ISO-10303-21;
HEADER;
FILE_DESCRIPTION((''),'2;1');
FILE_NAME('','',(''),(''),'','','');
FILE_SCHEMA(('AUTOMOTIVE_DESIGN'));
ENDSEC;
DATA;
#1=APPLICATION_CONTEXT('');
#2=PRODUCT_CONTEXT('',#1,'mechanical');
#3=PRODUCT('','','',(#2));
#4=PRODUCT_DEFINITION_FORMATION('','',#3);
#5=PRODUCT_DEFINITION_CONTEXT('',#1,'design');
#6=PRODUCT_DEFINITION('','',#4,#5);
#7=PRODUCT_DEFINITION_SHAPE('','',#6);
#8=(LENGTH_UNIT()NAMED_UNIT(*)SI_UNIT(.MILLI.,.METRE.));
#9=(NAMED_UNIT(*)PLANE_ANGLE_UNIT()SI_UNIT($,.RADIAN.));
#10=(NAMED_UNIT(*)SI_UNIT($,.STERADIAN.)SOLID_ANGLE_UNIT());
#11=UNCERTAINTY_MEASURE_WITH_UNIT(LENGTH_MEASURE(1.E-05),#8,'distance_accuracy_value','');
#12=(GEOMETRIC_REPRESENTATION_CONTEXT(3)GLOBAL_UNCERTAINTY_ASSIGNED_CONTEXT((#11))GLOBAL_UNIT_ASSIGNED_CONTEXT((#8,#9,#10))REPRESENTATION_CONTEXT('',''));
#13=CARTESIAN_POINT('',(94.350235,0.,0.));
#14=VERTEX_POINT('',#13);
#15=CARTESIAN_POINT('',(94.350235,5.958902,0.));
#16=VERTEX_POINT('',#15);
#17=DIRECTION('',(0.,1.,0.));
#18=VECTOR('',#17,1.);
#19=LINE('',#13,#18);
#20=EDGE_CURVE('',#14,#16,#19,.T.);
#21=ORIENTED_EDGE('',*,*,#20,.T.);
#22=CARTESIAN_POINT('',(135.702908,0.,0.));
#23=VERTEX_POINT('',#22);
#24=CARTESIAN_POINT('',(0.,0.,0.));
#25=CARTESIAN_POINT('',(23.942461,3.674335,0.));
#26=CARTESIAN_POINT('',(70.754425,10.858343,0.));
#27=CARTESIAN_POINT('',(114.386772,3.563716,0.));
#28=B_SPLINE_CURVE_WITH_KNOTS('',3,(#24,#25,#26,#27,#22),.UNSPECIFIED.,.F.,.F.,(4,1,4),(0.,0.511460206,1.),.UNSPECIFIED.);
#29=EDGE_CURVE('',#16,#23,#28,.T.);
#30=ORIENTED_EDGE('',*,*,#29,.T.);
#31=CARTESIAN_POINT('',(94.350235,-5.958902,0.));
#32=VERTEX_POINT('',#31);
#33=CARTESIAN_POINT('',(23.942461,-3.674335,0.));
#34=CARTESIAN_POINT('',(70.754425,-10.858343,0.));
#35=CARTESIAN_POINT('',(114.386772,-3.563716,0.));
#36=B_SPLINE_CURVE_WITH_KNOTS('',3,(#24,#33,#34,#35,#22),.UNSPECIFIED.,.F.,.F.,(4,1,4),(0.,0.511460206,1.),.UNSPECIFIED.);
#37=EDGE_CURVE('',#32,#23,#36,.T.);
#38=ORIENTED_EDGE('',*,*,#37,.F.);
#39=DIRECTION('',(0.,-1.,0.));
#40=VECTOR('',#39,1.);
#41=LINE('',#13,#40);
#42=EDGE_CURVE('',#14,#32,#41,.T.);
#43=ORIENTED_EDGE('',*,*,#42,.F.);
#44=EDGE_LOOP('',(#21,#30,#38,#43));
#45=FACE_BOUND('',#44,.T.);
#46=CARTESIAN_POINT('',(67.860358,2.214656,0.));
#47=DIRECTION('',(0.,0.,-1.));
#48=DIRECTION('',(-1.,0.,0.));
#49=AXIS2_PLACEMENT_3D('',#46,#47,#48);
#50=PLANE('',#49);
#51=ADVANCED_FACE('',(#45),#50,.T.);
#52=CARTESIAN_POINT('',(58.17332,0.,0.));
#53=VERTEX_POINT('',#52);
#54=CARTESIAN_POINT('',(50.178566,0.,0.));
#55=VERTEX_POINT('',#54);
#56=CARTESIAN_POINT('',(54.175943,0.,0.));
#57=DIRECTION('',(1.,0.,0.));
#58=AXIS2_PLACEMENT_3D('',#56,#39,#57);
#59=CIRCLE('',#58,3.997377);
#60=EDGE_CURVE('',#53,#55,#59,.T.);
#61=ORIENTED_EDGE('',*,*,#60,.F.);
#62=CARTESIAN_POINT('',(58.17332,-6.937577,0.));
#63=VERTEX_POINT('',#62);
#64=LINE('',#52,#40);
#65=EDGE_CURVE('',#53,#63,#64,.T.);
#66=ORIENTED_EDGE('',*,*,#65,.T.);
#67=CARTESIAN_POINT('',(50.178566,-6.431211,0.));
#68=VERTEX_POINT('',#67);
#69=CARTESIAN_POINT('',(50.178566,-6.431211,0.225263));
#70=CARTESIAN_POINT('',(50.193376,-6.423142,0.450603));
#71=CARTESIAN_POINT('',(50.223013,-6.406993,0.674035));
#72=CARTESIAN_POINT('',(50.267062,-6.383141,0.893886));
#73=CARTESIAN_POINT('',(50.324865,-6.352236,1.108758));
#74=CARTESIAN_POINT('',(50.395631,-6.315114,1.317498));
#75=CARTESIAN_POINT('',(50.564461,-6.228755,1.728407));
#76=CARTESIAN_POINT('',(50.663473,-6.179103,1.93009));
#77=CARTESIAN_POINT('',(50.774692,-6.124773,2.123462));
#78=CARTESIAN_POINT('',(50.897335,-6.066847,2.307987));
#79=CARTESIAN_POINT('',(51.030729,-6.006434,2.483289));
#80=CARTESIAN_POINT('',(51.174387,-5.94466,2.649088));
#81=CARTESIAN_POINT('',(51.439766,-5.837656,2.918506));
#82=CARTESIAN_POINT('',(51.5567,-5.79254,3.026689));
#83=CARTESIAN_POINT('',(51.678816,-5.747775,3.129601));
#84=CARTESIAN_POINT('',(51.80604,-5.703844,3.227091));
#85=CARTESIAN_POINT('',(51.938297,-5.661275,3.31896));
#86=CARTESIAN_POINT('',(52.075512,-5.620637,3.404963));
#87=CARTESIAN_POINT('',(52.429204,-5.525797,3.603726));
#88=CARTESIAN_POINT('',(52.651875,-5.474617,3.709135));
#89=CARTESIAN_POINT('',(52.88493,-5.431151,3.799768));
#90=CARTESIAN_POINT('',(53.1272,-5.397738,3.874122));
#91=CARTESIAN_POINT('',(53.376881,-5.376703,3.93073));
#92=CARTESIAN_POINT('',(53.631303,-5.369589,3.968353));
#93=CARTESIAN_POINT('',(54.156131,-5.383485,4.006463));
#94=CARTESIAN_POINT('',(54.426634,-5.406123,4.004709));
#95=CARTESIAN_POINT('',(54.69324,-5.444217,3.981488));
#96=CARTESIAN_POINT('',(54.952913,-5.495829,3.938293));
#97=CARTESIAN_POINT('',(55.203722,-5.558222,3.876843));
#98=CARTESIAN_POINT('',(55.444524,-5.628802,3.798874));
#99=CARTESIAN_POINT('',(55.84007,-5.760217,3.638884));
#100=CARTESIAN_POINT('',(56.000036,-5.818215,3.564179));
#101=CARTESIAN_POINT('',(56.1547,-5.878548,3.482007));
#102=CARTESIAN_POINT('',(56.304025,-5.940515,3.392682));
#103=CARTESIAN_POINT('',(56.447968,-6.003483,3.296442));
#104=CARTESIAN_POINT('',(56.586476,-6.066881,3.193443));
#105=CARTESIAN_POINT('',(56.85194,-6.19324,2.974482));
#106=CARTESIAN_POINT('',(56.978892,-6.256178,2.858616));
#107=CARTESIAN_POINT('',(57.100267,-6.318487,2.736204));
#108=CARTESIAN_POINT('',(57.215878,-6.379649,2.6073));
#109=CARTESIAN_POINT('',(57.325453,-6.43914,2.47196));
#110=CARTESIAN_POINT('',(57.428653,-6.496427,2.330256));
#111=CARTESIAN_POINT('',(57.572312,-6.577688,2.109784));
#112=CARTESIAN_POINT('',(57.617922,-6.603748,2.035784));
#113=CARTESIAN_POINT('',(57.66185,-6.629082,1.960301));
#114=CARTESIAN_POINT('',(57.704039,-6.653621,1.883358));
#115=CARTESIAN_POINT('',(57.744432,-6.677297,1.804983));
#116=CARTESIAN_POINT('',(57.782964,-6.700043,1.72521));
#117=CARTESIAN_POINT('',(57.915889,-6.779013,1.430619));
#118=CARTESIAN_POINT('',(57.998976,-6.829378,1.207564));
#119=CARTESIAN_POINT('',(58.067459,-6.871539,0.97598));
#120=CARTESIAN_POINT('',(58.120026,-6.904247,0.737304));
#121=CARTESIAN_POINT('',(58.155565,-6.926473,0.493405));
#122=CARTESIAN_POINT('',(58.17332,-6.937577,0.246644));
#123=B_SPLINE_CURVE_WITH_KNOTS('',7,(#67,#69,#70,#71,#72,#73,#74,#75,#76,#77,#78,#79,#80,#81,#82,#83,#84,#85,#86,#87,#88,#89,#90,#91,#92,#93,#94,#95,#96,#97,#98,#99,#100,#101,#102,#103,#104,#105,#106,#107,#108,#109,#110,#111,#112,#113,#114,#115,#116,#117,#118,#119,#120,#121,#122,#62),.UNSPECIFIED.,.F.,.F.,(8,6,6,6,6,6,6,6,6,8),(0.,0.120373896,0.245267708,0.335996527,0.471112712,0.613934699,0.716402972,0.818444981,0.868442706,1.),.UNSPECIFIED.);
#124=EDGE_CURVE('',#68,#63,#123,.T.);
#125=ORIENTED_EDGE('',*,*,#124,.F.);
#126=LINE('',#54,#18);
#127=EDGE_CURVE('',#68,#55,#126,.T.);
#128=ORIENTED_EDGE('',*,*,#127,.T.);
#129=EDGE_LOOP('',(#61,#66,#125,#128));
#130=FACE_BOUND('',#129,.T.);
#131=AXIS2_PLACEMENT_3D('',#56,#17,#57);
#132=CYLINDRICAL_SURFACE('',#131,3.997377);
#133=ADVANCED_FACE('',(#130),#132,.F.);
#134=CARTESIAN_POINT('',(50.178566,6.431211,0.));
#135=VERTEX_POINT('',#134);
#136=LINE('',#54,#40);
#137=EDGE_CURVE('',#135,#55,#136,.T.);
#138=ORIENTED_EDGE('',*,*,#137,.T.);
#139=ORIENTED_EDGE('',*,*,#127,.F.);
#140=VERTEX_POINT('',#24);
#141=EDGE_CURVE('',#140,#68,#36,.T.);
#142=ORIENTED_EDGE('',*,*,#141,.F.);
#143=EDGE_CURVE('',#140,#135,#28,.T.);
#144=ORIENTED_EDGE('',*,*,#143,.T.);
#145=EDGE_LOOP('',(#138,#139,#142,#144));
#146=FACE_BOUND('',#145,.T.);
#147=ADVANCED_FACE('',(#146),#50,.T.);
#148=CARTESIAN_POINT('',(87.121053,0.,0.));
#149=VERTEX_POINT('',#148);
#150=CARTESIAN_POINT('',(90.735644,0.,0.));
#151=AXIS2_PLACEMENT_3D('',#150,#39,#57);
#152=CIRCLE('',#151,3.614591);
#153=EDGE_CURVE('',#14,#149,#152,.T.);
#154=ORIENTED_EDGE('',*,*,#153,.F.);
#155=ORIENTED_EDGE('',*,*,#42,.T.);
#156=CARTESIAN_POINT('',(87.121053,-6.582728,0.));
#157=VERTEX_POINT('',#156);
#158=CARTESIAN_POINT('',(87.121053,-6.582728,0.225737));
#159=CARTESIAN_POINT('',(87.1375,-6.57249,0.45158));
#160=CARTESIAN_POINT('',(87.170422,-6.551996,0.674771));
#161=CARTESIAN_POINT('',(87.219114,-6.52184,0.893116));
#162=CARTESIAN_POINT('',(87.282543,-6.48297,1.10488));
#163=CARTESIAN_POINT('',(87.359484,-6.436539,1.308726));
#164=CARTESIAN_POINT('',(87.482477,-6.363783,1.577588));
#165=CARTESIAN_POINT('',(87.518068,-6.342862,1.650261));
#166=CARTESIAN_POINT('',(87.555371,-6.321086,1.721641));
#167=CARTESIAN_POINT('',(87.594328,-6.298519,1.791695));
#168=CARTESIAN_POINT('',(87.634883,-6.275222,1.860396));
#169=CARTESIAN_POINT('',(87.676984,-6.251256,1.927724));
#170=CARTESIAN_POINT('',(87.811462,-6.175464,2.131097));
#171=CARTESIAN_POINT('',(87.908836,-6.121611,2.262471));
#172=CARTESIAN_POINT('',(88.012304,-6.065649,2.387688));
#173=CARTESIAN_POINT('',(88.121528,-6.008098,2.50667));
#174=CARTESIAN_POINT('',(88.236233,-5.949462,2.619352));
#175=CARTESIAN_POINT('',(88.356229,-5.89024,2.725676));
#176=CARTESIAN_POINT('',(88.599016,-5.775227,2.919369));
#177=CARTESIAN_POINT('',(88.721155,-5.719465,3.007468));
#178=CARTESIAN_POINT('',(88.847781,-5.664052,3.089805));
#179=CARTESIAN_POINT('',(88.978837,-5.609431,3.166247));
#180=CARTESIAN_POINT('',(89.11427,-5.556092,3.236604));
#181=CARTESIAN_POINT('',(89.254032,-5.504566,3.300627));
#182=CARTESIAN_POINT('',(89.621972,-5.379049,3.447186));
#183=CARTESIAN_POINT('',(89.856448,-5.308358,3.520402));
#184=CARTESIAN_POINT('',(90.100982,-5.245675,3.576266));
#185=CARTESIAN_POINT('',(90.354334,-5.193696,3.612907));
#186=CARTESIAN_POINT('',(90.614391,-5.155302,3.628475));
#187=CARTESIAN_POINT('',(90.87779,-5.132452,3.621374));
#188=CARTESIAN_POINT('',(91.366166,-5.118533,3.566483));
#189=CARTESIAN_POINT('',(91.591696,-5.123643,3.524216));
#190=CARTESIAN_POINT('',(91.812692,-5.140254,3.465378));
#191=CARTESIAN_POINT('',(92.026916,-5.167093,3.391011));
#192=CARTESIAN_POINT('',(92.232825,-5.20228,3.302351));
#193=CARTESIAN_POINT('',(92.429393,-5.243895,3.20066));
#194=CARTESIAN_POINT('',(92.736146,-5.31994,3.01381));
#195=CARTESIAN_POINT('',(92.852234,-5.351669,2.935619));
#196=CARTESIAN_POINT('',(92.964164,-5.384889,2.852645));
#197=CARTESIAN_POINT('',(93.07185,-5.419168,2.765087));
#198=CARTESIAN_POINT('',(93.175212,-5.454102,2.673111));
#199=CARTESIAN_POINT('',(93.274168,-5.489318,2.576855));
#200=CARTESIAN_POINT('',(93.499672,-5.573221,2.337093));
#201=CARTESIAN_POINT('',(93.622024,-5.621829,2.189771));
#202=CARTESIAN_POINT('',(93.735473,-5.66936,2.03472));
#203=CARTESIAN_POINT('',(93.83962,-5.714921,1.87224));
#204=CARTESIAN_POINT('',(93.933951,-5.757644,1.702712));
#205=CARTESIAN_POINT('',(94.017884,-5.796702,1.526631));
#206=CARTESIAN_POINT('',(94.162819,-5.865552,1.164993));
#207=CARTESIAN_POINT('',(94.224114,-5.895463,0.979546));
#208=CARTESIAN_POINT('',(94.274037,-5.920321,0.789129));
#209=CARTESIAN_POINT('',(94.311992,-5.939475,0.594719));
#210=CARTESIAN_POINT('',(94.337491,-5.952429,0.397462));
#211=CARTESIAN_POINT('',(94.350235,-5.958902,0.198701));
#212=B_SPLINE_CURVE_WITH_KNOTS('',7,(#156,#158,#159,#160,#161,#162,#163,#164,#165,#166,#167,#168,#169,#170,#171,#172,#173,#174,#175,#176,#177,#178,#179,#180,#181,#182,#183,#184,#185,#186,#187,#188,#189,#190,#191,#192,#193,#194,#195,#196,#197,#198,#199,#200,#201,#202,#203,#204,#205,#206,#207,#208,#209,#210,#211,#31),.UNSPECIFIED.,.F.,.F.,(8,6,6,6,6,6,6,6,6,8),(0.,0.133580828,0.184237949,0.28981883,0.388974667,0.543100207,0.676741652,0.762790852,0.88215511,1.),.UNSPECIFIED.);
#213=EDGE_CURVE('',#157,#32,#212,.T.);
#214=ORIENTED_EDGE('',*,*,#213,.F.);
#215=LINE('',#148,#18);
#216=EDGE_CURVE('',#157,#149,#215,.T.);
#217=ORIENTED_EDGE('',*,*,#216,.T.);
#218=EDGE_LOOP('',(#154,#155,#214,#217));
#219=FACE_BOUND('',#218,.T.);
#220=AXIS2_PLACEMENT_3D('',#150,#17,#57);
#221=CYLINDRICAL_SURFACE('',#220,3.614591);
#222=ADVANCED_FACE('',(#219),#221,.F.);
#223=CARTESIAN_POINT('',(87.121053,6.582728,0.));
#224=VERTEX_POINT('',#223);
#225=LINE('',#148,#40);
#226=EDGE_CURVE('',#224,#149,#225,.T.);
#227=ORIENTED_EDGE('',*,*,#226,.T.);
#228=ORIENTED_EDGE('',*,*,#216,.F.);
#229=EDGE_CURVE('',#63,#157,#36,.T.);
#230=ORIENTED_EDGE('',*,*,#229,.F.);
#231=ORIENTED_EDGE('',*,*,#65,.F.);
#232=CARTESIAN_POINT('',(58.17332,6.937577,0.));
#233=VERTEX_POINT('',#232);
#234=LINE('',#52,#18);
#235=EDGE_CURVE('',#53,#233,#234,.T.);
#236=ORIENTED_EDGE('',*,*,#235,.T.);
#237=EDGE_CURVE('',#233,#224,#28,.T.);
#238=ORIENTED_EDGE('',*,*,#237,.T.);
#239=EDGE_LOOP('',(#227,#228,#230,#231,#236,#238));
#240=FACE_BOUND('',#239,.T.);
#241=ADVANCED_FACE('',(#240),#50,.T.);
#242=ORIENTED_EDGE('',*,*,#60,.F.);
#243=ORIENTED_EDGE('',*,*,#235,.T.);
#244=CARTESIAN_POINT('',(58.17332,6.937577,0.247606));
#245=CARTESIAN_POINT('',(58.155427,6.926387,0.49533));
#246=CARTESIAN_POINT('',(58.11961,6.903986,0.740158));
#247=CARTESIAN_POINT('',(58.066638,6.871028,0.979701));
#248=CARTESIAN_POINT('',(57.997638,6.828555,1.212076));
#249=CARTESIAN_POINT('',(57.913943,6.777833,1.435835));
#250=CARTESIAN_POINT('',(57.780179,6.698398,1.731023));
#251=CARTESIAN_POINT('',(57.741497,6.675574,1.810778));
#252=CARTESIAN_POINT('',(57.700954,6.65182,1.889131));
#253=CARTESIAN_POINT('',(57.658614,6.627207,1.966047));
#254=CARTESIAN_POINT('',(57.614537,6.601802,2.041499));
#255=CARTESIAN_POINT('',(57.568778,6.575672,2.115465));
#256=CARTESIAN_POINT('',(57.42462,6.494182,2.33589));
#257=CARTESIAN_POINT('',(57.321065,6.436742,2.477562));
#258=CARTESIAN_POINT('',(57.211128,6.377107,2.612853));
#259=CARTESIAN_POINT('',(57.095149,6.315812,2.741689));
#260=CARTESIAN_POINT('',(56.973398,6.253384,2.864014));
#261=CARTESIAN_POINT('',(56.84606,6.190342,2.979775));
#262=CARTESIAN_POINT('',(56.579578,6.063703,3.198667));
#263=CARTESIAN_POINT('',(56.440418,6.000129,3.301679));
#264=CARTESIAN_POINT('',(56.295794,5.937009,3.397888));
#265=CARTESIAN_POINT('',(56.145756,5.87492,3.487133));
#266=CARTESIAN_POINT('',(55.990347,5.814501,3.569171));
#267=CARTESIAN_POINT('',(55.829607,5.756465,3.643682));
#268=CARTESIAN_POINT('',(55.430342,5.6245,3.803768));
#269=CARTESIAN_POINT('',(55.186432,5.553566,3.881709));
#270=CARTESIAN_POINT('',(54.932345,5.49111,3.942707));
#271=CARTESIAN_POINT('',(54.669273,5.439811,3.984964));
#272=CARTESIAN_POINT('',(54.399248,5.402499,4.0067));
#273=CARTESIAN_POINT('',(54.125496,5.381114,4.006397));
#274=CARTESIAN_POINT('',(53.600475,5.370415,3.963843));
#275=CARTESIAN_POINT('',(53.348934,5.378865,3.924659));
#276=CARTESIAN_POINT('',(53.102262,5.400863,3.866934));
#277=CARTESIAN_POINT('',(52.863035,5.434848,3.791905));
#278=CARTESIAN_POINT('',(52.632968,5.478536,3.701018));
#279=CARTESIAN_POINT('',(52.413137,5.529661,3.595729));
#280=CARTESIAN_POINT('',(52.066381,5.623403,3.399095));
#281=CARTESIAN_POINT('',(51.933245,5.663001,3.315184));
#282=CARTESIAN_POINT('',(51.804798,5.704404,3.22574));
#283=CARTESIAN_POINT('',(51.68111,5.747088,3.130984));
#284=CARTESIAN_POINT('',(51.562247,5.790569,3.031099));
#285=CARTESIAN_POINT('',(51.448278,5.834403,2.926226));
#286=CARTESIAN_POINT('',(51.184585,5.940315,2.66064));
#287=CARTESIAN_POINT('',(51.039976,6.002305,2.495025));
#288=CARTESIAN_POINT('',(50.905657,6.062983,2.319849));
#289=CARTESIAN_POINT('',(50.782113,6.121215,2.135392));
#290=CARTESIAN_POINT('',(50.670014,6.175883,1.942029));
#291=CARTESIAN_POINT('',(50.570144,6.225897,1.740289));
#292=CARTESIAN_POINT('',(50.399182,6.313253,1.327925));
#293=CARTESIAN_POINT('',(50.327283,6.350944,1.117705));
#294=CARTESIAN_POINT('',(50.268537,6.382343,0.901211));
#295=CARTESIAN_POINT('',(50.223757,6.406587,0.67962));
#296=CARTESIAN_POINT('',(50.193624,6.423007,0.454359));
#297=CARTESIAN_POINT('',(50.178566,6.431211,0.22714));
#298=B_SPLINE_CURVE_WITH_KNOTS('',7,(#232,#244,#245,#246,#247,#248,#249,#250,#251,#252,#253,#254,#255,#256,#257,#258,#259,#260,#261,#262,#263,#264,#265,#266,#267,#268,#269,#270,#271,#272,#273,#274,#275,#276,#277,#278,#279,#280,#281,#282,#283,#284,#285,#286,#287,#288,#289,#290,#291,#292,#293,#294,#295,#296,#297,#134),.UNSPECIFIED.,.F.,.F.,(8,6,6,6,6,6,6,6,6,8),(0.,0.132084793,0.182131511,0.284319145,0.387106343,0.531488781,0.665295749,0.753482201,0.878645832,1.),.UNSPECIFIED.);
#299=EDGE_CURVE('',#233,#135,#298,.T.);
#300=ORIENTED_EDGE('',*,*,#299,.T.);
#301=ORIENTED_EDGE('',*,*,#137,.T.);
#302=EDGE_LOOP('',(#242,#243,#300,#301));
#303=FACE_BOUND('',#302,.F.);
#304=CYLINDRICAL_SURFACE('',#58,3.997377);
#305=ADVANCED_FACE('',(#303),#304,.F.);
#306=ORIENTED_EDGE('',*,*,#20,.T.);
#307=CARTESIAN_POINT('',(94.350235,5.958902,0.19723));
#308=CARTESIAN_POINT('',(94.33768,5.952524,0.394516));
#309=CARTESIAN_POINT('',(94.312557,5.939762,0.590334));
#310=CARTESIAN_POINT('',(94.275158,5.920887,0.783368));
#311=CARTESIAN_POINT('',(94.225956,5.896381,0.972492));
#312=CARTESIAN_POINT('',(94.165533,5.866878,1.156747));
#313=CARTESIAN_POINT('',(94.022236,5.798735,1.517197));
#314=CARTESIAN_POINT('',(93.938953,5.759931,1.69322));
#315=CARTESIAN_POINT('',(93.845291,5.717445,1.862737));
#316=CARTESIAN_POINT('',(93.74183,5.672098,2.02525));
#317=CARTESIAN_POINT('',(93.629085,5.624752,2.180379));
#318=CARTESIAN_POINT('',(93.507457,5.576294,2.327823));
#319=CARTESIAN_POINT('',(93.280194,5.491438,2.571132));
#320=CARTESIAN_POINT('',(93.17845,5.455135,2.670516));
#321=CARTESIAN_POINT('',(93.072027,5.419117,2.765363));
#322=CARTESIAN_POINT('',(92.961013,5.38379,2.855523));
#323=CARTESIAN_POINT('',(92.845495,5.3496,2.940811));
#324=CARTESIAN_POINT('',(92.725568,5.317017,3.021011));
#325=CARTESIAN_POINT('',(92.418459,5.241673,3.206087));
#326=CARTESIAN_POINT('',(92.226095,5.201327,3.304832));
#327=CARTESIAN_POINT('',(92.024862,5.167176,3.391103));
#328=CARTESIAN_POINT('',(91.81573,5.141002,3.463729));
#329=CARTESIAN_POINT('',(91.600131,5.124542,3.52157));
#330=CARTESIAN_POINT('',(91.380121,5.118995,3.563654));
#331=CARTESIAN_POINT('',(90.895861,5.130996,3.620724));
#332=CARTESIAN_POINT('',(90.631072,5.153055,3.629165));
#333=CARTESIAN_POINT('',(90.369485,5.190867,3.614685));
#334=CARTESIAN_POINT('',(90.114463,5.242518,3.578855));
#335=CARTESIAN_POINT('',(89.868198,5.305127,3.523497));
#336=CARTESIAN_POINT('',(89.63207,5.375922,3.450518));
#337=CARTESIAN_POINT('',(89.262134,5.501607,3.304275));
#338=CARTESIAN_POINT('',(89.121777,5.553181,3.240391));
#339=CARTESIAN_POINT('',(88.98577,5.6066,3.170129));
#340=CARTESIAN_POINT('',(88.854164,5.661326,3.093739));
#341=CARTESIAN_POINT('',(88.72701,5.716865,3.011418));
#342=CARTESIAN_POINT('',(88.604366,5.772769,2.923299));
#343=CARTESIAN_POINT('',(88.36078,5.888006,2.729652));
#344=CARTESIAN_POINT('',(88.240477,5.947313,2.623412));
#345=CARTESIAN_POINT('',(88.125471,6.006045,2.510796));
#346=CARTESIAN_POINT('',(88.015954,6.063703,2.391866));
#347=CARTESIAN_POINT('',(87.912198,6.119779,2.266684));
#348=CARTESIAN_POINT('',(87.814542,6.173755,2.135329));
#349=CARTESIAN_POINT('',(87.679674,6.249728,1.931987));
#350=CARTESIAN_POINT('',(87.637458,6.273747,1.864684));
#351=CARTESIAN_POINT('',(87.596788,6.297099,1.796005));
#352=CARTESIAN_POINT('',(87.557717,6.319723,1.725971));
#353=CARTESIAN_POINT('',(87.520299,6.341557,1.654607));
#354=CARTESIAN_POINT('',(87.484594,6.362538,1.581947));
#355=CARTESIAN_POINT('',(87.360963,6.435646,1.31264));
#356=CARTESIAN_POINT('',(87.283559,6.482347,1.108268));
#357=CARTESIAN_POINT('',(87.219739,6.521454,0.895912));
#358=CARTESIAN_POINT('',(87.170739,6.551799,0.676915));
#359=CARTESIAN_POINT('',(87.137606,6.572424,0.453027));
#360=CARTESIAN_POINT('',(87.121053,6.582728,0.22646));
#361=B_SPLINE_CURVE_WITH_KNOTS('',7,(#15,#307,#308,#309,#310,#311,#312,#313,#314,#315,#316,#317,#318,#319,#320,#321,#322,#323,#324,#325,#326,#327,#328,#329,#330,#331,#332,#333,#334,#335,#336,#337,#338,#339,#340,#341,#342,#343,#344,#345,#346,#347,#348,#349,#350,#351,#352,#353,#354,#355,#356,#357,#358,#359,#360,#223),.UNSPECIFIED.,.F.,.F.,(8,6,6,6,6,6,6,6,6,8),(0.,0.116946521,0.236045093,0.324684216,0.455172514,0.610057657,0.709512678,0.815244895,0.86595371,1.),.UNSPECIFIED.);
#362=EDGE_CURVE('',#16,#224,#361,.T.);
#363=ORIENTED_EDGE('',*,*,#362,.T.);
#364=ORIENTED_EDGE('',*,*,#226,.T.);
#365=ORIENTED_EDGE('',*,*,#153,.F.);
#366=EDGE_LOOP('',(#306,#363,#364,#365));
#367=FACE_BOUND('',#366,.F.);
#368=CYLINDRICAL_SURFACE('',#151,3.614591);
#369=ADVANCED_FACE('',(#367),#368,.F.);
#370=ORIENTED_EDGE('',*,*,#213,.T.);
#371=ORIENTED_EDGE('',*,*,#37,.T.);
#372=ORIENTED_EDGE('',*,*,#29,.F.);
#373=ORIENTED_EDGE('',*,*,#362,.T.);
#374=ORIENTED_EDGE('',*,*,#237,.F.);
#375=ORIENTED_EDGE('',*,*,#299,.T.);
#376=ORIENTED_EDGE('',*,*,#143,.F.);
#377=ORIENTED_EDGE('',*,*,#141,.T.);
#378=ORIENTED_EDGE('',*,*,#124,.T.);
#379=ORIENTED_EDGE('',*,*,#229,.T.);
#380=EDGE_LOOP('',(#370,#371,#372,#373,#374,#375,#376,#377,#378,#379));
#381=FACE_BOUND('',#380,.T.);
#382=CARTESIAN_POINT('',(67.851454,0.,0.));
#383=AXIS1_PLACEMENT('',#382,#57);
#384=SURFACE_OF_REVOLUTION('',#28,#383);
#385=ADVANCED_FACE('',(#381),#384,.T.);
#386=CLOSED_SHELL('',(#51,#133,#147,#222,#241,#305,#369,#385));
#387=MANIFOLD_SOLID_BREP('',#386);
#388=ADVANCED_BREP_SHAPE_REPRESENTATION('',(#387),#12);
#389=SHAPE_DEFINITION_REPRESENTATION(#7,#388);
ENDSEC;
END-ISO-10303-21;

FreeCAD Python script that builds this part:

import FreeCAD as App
import Part
import Sketcher

doc = App.newDocument("Part")
body = doc.addObject("PartDesign::Body", "Body")

# Sketch on XY plane
sketch1 = body.newObject("Sketcher::SketchObject", "Sketch")
sketch1.AttachmentSupport = (doc.getObject("XY_Plane"), [""])
sketch1.MapMode = "FlatFace"
sketch1.addGeometry([
    Part.BSplineCurve([App.Vector(0, 0, 0), App.Vector(23.942461, 3.674335, 0), App.Vector(70.754425, 10.858343, 0), App.Vector(114.386772, 3.563716, 0), App.Vector(135.702908, 0, 0)], [4, 1, 4], [0, 0.511460206, 1], False, 3, [1, 1, 1, 1, 1], False),
    Part.LineSegment(App.Vector(0, 0, 0), App.Vector(135.702908, 0, 0)),
], False)
sketch1.addConstraint([
    Sketcher.Constraint("Block", 0),
    Sketcher.Constraint("Coincident", 0, 1, 1, 1),
    Sketcher.Constraint("Coincident", 1, 2, 0, 2),
])
revolution = body.newObject("PartDesign::Revolution", "Revolution")
revolution.Profile = sketch1
revolution.ReferenceAxis = (sketch1, ["H_Axis"])
revolution.Angle = 180

# Sketch on XZ plane
sketch2 = body.newObject("Sketcher::SketchObject", "Sketch001")
sketch2.AttachmentSupport = (doc.getObject("XZ_Plane"), [""])
sketch2.MapMode = "FlatFace"
sketch2.addGeometry([
    Part.Circle(App.Vector(54.2, 0, 0), App.Vector(0, 0, 1), 4),
    Part.Circle(App.Vector(90.7, 0, 0), App.Vector(0, 0, 1), 3.6),
], False)
sketch2.addConstraint([
    Sketcher.Constraint("PointOnObject", 0, 3, -1),
    Sketcher.Constraint("PointOnObject", 1, 3, -1),
    Sketcher.Constraint("Diameter", 0, 7.994754),
    Sketcher.Constraint("Diameter", 1, 7.229182),
    Sketcher.Constraint("DistanceX", 0, 3, 1, 3, 36.559701),
    Sketcher.Constraint("DistanceX", -1, 1, 0, 3, 54.175943),
])
pocket1 = body.newObject("PartDesign::Pocket", "Pocket")
pocket1.Profile = sketch2
pocket1.Type = "ThroughAll"
pocket1.Midplane = True

doc.recompute()
